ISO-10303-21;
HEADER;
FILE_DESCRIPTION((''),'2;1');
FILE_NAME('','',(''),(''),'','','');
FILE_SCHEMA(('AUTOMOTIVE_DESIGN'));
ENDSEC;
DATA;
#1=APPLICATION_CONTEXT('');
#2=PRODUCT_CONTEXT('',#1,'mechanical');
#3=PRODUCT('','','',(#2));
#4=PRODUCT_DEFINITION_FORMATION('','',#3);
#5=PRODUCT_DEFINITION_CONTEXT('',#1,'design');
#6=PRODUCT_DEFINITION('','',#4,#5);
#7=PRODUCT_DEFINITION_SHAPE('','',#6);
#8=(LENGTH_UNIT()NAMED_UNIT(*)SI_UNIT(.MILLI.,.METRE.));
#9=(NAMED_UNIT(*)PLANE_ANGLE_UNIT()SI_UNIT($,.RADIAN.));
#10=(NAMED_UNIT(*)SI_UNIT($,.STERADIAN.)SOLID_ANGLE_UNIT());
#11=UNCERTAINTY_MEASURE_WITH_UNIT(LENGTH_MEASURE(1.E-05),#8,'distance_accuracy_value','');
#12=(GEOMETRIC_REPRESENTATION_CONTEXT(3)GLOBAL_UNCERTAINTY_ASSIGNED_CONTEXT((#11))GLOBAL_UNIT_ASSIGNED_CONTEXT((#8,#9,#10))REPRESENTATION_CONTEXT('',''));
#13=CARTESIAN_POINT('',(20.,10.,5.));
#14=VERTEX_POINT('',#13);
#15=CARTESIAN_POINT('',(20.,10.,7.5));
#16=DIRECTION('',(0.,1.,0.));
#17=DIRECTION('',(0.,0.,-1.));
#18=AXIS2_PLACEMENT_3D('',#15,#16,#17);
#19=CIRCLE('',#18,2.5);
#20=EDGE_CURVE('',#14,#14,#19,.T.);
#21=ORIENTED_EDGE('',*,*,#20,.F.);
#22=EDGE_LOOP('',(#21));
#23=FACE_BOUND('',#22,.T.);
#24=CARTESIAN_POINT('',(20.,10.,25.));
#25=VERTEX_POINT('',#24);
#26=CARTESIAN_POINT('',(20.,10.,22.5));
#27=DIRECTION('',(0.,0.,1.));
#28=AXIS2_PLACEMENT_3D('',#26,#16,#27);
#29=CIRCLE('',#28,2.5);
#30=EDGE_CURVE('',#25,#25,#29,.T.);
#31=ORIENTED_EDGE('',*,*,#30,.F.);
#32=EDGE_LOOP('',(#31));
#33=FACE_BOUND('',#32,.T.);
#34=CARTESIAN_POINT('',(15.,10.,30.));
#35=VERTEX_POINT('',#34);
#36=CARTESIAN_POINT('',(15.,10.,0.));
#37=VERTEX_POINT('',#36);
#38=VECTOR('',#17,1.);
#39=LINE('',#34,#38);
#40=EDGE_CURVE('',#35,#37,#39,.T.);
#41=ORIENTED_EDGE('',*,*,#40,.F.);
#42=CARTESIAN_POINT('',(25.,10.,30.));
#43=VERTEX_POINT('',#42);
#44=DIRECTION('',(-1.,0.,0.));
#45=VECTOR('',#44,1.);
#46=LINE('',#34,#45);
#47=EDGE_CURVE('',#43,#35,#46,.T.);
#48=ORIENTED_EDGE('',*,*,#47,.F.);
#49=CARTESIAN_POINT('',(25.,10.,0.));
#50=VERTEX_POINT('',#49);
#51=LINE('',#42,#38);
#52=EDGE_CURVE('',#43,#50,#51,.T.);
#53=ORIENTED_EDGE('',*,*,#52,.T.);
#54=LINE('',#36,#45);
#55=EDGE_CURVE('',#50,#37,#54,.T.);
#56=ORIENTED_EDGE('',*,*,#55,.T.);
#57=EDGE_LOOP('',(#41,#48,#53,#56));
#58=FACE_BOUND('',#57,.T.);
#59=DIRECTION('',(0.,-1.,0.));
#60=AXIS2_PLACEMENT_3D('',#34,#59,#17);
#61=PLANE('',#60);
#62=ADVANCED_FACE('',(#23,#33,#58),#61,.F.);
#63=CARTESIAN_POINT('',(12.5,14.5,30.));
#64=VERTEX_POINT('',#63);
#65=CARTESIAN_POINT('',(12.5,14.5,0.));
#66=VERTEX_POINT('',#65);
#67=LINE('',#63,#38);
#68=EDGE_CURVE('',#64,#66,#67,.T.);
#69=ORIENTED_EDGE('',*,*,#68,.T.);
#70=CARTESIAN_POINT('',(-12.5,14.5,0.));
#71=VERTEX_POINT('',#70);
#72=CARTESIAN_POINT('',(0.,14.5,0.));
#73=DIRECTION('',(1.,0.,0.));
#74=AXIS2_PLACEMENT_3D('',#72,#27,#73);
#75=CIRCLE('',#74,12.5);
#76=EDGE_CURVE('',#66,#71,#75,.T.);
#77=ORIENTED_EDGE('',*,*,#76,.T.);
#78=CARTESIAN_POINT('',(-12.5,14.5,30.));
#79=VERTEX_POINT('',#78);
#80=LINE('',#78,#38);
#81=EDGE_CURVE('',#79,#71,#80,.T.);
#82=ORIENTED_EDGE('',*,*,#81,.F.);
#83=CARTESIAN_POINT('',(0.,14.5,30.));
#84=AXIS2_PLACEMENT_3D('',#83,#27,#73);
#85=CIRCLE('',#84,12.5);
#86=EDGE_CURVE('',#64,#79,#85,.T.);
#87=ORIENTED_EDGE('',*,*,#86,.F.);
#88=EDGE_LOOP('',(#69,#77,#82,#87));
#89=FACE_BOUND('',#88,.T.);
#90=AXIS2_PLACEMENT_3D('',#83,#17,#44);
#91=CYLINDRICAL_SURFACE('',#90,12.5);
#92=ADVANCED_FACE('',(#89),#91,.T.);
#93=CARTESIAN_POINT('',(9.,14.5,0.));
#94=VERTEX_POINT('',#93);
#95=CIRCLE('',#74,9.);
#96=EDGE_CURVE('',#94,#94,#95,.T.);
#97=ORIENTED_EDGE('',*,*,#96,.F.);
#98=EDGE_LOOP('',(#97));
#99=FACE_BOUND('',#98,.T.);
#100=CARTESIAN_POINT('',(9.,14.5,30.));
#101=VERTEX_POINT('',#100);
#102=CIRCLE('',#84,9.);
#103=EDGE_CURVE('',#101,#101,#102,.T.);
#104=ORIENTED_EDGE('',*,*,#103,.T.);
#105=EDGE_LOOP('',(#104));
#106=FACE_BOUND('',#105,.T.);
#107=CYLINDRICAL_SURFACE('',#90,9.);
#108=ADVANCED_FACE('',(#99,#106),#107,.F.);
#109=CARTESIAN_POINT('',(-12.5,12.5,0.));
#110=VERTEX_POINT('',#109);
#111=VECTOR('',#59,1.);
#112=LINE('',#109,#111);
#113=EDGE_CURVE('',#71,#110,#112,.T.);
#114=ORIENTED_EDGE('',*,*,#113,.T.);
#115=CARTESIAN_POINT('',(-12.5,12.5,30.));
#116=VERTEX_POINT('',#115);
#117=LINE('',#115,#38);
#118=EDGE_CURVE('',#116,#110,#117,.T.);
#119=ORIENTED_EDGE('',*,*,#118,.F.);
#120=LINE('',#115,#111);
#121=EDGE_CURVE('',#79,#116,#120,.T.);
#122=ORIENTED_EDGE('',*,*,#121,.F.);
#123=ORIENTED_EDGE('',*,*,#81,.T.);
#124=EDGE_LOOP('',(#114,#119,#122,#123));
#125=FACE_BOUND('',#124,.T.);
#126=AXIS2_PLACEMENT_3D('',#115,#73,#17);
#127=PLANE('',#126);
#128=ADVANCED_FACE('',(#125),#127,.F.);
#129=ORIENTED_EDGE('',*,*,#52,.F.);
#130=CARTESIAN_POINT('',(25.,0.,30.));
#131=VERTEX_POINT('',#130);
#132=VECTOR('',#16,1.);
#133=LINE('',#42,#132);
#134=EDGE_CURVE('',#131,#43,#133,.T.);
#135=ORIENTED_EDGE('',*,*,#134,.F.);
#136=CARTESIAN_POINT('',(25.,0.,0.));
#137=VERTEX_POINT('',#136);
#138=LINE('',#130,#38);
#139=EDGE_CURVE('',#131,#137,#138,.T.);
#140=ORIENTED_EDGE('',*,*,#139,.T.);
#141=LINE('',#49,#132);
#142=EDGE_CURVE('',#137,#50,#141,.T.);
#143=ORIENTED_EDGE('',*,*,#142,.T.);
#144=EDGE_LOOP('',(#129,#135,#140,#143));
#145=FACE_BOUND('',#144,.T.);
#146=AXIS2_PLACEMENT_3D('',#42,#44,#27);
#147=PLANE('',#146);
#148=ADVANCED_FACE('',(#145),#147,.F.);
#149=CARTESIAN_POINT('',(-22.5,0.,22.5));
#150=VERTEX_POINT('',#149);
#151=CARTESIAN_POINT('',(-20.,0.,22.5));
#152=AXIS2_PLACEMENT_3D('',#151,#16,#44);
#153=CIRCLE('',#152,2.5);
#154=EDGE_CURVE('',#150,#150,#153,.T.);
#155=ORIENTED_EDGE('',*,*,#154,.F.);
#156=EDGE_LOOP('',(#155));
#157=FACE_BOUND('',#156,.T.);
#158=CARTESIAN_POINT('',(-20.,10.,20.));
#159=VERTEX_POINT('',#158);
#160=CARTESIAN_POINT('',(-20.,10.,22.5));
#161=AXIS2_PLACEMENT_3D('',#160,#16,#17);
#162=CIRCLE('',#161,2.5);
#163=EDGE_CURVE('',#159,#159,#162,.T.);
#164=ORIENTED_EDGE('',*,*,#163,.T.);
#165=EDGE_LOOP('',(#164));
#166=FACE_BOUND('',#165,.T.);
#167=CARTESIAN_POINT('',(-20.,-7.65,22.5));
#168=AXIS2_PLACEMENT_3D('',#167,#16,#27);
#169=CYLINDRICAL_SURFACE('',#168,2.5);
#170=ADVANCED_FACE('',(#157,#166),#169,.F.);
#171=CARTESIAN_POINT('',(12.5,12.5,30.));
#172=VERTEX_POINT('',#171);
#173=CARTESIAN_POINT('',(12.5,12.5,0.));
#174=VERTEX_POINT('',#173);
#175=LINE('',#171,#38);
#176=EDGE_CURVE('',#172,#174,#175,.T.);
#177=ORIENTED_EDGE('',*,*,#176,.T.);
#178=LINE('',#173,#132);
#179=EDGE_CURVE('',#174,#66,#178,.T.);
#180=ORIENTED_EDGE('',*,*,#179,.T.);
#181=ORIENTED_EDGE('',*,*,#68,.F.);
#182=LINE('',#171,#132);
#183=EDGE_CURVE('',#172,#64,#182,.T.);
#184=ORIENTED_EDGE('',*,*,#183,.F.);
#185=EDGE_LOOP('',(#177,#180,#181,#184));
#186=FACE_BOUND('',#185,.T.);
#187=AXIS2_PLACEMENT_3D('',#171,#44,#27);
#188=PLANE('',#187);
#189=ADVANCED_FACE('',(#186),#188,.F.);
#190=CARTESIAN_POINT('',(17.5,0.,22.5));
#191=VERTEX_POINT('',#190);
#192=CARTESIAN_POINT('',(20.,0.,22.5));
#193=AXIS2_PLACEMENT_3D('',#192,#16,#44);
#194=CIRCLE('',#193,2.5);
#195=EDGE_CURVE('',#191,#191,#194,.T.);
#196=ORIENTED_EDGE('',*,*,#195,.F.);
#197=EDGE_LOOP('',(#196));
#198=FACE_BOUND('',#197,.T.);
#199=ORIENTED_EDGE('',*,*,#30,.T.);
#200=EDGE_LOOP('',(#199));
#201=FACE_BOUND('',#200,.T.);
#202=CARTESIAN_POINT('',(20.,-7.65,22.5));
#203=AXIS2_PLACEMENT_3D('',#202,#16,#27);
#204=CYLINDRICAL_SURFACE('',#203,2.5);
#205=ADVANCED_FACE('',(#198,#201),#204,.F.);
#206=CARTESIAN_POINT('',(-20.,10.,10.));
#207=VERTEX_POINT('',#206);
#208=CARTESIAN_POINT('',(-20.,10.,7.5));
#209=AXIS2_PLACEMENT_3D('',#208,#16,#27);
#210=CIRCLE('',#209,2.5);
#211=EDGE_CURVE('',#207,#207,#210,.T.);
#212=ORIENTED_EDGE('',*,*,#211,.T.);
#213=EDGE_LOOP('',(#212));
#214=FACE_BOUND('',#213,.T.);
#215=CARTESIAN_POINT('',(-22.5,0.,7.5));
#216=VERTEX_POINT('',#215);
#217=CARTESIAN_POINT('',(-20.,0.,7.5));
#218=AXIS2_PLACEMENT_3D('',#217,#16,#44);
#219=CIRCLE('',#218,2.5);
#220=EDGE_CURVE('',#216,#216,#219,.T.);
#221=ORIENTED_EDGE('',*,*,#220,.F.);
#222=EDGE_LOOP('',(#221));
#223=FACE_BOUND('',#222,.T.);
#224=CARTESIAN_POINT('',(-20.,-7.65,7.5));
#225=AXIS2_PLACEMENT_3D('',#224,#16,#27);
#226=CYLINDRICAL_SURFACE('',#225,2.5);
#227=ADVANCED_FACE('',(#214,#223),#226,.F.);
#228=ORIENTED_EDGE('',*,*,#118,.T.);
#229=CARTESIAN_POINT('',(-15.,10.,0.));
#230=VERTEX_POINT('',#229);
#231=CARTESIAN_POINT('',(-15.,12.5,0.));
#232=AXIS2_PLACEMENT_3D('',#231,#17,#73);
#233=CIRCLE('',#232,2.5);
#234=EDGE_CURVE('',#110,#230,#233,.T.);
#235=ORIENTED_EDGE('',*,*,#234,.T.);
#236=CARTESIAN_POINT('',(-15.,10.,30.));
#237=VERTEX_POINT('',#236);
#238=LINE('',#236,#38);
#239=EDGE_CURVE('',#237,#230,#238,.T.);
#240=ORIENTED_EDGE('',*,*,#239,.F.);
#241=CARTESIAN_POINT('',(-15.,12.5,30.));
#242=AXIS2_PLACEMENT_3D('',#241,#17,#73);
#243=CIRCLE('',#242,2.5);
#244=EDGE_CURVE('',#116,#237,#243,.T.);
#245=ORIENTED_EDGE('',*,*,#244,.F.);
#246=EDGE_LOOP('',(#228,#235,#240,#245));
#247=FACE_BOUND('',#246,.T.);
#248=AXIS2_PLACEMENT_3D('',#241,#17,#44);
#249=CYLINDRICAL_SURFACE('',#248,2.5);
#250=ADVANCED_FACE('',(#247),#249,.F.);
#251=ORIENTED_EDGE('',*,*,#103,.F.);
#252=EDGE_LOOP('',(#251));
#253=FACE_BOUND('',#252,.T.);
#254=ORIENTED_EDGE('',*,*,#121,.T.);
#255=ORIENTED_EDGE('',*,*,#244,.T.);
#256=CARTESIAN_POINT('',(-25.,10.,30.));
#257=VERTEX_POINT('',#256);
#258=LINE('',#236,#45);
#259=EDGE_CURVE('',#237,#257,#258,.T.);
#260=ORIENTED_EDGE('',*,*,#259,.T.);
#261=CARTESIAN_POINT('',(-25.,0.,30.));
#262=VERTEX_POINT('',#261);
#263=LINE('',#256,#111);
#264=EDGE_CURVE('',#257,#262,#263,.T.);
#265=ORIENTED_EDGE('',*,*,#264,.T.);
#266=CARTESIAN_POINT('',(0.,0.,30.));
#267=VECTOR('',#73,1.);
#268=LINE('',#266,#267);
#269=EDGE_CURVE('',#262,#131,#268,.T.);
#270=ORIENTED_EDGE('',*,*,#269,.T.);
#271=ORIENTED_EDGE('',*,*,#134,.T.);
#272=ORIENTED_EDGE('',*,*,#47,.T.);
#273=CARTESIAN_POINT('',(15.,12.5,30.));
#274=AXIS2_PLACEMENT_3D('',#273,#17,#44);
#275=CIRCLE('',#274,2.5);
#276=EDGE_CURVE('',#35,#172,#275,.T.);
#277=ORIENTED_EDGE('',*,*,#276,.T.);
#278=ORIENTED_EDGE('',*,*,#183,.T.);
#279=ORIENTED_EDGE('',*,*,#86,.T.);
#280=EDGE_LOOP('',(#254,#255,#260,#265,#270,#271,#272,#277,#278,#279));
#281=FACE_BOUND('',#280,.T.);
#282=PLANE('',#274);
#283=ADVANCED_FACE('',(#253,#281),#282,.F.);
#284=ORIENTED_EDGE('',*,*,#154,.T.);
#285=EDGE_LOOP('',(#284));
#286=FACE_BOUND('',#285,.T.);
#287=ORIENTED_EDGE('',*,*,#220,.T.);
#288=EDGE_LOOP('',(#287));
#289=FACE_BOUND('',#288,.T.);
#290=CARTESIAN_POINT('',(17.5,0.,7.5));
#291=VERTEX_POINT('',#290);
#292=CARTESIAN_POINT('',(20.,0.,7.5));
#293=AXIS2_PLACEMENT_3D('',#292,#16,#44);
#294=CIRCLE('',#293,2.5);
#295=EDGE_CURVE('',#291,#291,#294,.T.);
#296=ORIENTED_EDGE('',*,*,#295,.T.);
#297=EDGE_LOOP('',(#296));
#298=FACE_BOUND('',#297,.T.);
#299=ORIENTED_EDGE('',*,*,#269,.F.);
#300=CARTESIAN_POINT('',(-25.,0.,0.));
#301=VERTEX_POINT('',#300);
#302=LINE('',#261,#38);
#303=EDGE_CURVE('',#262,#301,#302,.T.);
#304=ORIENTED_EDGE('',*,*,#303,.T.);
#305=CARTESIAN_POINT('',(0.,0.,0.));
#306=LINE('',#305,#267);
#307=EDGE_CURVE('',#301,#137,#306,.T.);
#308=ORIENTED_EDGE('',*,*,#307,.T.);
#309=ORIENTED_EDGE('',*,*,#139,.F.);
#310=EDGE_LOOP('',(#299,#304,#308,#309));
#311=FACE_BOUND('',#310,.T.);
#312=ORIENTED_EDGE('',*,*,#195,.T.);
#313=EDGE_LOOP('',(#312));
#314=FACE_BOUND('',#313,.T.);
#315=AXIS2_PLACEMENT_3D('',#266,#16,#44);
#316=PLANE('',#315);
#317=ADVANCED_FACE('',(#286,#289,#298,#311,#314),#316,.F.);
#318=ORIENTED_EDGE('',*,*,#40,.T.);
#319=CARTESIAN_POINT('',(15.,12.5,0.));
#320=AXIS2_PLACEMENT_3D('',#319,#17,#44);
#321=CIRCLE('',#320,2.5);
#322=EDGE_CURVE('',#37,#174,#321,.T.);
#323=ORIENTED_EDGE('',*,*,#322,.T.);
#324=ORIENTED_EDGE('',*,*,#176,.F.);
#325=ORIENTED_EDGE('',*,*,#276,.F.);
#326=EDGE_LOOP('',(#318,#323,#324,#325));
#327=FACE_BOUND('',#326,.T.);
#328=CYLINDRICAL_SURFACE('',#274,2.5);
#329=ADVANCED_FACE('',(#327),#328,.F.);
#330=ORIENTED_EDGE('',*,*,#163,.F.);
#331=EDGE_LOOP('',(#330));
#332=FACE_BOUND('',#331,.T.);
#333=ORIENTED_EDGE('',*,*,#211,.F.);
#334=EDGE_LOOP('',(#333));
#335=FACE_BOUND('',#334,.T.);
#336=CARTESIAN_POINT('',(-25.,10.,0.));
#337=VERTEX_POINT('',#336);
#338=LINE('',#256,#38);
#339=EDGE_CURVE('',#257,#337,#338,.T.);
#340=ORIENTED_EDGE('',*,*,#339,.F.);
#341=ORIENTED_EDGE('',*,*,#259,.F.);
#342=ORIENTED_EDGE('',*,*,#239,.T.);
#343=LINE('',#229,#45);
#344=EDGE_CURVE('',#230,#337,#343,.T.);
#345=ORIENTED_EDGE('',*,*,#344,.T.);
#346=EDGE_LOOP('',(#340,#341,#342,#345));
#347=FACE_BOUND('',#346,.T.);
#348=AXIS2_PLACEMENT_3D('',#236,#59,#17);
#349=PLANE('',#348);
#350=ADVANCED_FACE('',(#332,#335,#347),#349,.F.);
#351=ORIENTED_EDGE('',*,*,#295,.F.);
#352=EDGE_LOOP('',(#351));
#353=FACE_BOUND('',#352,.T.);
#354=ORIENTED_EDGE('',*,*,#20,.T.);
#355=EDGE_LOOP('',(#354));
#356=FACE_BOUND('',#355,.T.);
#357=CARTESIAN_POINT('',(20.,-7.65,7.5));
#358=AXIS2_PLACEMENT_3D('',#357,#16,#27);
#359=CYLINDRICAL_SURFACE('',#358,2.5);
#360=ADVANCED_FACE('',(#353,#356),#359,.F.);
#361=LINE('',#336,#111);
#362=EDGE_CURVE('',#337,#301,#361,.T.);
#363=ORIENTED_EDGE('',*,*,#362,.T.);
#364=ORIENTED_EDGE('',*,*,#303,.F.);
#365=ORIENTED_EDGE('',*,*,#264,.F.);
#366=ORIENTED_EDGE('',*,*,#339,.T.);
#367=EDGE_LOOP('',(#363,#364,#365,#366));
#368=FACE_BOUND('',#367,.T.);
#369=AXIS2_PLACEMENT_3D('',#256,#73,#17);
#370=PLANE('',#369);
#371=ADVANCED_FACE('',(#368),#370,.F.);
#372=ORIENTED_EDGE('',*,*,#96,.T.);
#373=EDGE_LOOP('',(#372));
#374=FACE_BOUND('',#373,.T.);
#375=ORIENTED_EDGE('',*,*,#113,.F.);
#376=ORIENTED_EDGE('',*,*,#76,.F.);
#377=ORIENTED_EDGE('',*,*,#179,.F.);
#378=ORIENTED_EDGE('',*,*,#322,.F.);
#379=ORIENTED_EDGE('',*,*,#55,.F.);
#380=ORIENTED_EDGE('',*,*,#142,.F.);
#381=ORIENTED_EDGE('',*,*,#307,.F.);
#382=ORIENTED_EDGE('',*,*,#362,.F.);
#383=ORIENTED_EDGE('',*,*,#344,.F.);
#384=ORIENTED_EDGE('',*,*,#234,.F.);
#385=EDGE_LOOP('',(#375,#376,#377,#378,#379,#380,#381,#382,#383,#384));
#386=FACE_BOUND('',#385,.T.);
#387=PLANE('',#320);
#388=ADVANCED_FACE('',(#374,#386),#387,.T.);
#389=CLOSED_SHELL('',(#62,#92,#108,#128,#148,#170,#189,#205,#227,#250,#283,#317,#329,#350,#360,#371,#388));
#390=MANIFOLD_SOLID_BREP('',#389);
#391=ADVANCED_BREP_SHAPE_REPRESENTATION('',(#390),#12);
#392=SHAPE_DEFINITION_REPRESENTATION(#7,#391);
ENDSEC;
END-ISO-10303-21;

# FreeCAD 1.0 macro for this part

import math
import FreeCAD as App
import Part
import Sketcher
from FreeCAD import Vector
Q = App.Units.Quantity

doc = App.newDocument("Part")
body = doc.addObject("PartDesign::Body", "Body")

# Sketch on XY plane
sketch1 = body.newObject("Sketcher::SketchObject", "Sketch")
sketch1.AttachmentSupport = (doc.getObject("XY_Plane"), [""])
sketch1.MapMode = "FlatFace"
sketch1.addGeometry([
    Part.LineSegment(Vector(-25, 10, 0), Vector(-25, 0, 0)),  # 0
    Part.LineSegment(Vector(-25, 0, 0), Vector(25, 0, 0)),  # 1
    Part.LineSegment(Vector(25, 0, 0), Vector(25, 10, 0)),  # 2
    Part.LineSegment(Vector(25, 10, 0), Vector(15, 10, 0)),  # 3
    Part.ArcOfCircle(Part.Circle(Vector(15, 12.5, 0), Vector(0, 0, 1), 2.5), math.radians(180), math.radians(270)),  # 4
    Part.LineSegment(Vector(12.5, 12.5, 0), Vector(12.5, 14.5, 0)),  # 5
    Part.ArcOfCircle(Part.Circle(Vector(0, 14.5, 0), Vector(0, 0, 1), 12.5), math.radians(0), math.radians(180)),  # 6
    Part.LineSegment(Vector(-12.5, 14.5, 0), Vector(-12.5, 12.5, 0)),  # 7
    Part.ArcOfCircle(Part.Circle(Vector(-15, 12.5, 0), Vector(0, 0, 1), 2.5), math.radians(-90), math.radians(0)),  # 8
    Part.LineSegment(Vector(-15, 10, 0), Vector(-25, 10, 0)),  # 9
    Part.Circle(Vector(0, 14.5, 0), Vector(0, 0, 1), 9),  # 10
], False)
sketch1.addConstraint([
    Sketcher.Constraint("Coincident", 0, 2, 1, 1),
    Sketcher.Constraint("Coincident", 1, 2, 2, 1),
    Sketcher.Constraint("Coincident", 2, 2, 3, 1),
    Sketcher.Constraint("Tangent", 3, 2, 4, 2),
    Sketcher.Constraint("Tangent", 4, 1, 5, 1),
    Sketcher.Constraint("Tangent", 5, 2, 6, 1),
    Sketcher.Constraint("Tangent", 6, 2, 7, 1),
    Sketcher.Constraint("Tangent", 7, 2, 8, 2),
    Sketcher.Constraint("Tangent", 8, 1, 9, 1),
    Sketcher.Constraint("Coincident", 9, 2, 0, 1),
    Sketcher.Constraint("Vertical", 0),
    Sketcher.Constraint("Horizontal", 1),
    Sketcher.Constraint("Vertical", 2),
    Sketcher.Constraint("Horizontal", 3),
    Sketcher.Constraint("Vertical", 5),
    Sketcher.Constraint("Vertical", 7),
    Sketcher.Constraint("Horizontal", 9),
    Sketcher.Constraint("Coincident", 10, 3, 6, 3),
    Sketcher.Constraint("Equal", 4, 8),
    Sketcher.Constraint("Symmetric", 0, 2, 1, 2, -1, 1),
    Sketcher.Constraint("Symmetric", 4, 3, 8, 3, -2),
    Sketcher.Constraint("Equal", 9, 0),
    Sketcher.Constraint("Diameter", 10, Q("18 mm")),
    Sketcher.Constraint("Radius", 4, Q("2.5 mm")),
    Sketcher.Constraint("Radius", 6, Q("12.5 mm")),
    Sketcher.Constraint("DistanceX", 1, 1, 1, 2, Q("50 mm")),
    Sketcher.Constraint("DistanceY", 5, 1, 5, 2, Q("2 mm")),
])
pad1 = body.newObject("PartDesign::Pad", "Pad")
pad1.Profile = sketch1
pad1.Length = 30

# Sketch on XZ plane
sketch2 = body.newObject("Sketcher::SketchObject", "Sketch001")
sketch2.AttachmentSupport = (doc.getObject("XZ_Plane"), [""])
sketch2.MapMode = "FlatFace"
sketch2.AttachmentOffset = App.Placement(Vector(0, 0, -10), App.Rotation())
sketch2.addGeometry([
    Part.Circle(Vector(-20, 7.5, 0), Vector(0, 0, 1), 2.5),
    Part.Circle(Vector(-20, 22.5, 0), Vector(0, 0, 1), 2.5),
    Part.Circle(Vector(20, 22.5, 0), Vector(0, 0, 1), 2.5),
    Part.Circle(Vector(20, 7.5, 0), Vector(0, 0, 1), 2.5),
], False)
sketch2.addConstraint([
    Sketcher.Constraint("Equal", 0, 1),
    Sketcher.Constraint("Equal", 1, 2),
    Sketcher.Constraint("Equal", 2, 3),
    Sketcher.Constraint("Symmetric", 1, 3, 2, 3, -2),
    Sketcher.Constraint("Symmetric", 0, 3, 3, 3, -2),
    Sketcher.Constraint("Vertical", 0, 3, 1, 3),
    Sketcher.Constraint("Diameter", 0, Q("5 mm")),
    Sketcher.Constraint("DistanceX", 0, 3, -1, 1, Q("20 mm")),
    Sketcher.Constraint("DistanceY", 0, 3, 1, 3, Q("15 mm")),
    Sketcher.Constraint("DistanceY", -1, 1, 0, 3, Q("7.5 mm")),
])
pocket1 = body.newObject("PartDesign::Pocket", "Pocket")
pocket1.Profile = sketch2
pocket1.Length = 17.65
pocket1.Reversed = True

doc.recompute()
